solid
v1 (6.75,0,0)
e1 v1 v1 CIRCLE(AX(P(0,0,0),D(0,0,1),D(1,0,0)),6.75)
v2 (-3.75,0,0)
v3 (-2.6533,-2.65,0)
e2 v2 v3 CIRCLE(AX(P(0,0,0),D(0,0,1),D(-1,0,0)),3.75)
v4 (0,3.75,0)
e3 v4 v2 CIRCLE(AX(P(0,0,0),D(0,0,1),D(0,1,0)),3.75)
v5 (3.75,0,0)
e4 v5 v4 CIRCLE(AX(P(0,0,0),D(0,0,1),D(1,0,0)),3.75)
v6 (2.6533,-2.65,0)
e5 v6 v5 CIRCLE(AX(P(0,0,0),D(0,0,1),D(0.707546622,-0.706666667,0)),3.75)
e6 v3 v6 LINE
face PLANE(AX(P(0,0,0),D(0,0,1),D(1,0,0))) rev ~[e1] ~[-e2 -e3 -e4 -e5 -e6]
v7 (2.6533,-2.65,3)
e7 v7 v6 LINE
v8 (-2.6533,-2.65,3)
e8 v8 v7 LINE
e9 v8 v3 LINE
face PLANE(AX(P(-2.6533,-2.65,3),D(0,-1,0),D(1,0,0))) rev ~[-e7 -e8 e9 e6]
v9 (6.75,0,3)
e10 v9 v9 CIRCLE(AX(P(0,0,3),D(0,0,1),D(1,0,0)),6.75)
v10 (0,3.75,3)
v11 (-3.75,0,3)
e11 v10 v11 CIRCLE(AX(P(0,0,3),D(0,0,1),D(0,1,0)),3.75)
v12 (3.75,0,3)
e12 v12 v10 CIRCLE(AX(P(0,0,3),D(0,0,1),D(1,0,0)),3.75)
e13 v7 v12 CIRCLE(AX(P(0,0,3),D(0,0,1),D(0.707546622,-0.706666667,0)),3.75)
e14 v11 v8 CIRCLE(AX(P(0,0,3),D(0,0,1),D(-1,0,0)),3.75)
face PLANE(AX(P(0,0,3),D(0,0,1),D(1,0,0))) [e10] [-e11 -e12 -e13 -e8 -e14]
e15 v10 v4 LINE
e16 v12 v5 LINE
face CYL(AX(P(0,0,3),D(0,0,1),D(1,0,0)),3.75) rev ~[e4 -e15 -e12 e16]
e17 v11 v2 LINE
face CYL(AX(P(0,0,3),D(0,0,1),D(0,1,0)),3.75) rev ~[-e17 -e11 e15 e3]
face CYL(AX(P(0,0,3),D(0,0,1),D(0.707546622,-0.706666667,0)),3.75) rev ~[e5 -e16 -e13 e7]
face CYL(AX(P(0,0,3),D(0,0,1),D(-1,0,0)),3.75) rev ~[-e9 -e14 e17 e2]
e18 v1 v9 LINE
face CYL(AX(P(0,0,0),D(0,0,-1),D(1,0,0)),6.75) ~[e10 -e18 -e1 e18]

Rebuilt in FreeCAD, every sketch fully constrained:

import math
import FreeCAD as App
import Part
import Sketcher

V = App.Vector
Q = App.Units.Quantity

doc = App.newDocument("Part")
body = doc.addObject("PartDesign::Body", "Body")

sketch1 = doc.addObject("Sketcher::SketchObject", "Sketch")
body.addObject(sketch1)
sketch1.AttachmentSupport = (doc.XY_Plane, [""])
sketch1.MapMode = "FlatFace"
sketch1.addGeometry(Part.Circle(V(0, 0, 0), V(0, 0, 1), 7), False)
sketch1.addConstraint([
    Sketcher.Constraint("Coincident", 0, 3, -1, 1),
    Sketcher.Constraint("Diameter", 0, Q("13.5 mm")),
])
pad1 = doc.addObject("PartDesign::Pad", "Pad")
body.addObject(pad1)
pad1.Profile = sketch1
pad1.Length = 3

sketch2 = doc.addObject("Sketcher::SketchObject", "Sketch001")
body.addObject(sketch2)
sketch2.AttachmentSupport = (doc.XY_Plane, [""])
sketch2.MapMode = "FlatFace"
sketch2.AttachmentOffset = App.Placement(V(0, 0, 3), App.Rotation())
sketch2.addGeometry([
    Part.ArcOfCircle(Part.Circle(V(0, 0, 0), V(0, 0, 1), 3.8), math.radians(0), math.radians(90)),
    Part.ArcOfCircle(Part.Circle(V(0, 0, 0), V(0, 0, 1), 3.8), math.radians(90), math.radians(180)),
    Part.ArcOfCircle(Part.Circle(V(0, 0, 0), V(0, 0, 1), 3.8), math.radians(180), math.radians(225)),
    Part.LineSegment(V(-2.7, -2.6, 0), V(2.7, -2.6, 0)),
    Part.ArcOfCircle(Part.Circle(V(0, 0, 0), V(0, 0, 1), 3.8), math.radians(-45), math.radians(0)),
], False)
sketch2.addConstraint([
    Sketcher.Constraint("Tangent", 0, 2, 1, 1),
    Sketcher.Constraint("Tangent", 1, 2, 2, 1),
    Sketcher.Constraint("Coincident", 2, 2, 3, 1),
    Sketcher.Constraint("Coincident", 3, 2, 4, 1),
    Sketcher.Constraint("Tangent", 4, 2, 0, 1),
    Sketcher.Constraint("Horizontal", 3),
    Sketcher.Constraint("Coincident", 0, 3, -1, 1),
    Sketcher.Constraint("Coincident", 2, 3, -1, 1),
    Sketcher.Constraint("Equal", 2, 4),
    Sketcher.Constraint("PointOnObject", 0, 2, -2),
    Sketcher.Constraint("PointOnObject", 1, 2, -1),
    Sketcher.Constraint("PointOnObject", 4, 2, -1),
    Sketcher.Constraint("Radius", 0, Q("3.75 mm")),
    Sketcher.Constraint("DistanceY", 2, 2, -1, 1, Q("2.65 mm")),
])
pocket1 = doc.addObject("PartDesign::Pocket", "Pocket")
body.addObject(pocket1)
pocket1.Profile = sketch2
pocket1.Length = 25

doc.recompute()
